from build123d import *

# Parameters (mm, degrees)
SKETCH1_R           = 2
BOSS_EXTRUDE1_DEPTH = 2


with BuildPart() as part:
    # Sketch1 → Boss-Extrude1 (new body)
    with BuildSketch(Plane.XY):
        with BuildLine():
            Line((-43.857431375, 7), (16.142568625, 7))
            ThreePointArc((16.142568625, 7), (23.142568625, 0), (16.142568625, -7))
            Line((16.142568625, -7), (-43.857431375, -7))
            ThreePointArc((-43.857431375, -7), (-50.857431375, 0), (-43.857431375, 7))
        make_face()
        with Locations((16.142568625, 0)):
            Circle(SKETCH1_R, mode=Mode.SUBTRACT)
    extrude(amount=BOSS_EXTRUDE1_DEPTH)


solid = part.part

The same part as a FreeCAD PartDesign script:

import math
import FreeCAD as App
import Part
import Sketcher

V = App.Vector
Q = App.Units.Quantity

doc = App.newDocument("Part")
body = doc.addObject("PartDesign::Body", "Body")

sketch1 = body.newObject("Sketcher::SketchObject", "Sketch")
sketch1.AttachmentSupport = (doc.getObject("XY_Plane"), [""])
sketch1.MapMode = "FlatFace"
sketch1.addGeometry(Part.LineSegment(V(16.1, 7, 0), V(-43.9, 7, 0)), False)
sketch1.addGeometry(Part.ArcOfCircle(Part.Circle(V(-43.9, 0, 0), V(0, 0, 1), 7), math.radians(90), math.radians(270)), False)
sketch1.addGeometry(Part.LineSegment(V(-43.9, -7, 0), V(16.1, -7, 0)), False)
sketch1.addGeometry(Part.ArcOfCircle(Part.Circle(V(16.1, 0, 0), V(0, 0, 1), 7), math.radians(-90), math.radians(90)), False)
sketch1.addGeometry(Part.Circle(V(16.1, 0, 0), V(0, 0, 1), 2), False)
sketch1.addConstraint(Sketcher.Constraint("Tangent", 0, 2, 1, 1))
sketch1.addConstraint(Sketcher.Constraint("Tangent", 1, 2, 2, 1))
sketch1.addConstraint(Sketcher.Constraint("Tangent", 2, 2, 3, 1))
sketch1.addConstraint(Sketcher.Constraint("Tangent", 3, 2, 0, 1))
sketch1.addConstraint(Sketcher.Constraint("Horizontal", 0))
sketch1.addConstraint(Sketcher.Constraint("Horizontal", 2))
sketch1.addConstraint(Sketcher.Constraint("Coincident", 4, 3, 3, 3))
sketch1.addConstraint(Sketcher.Constraint("PointOnObject", 1, 3, -1))
sketch1.addConstraint(Sketcher.Constraint("Diameter", 4, Q("4 mm")))
sketch1.addConstraint(Sketcher.Constraint("Radius", 1, Q("7 mm")))
sketch1.addConstraint(Sketcher.Constraint("DistanceX", 0, 2, 0, 1, Q("60 mm")))
sketch1.addConstraint(Sketcher.Constraint("DistanceX", 1, 3, -1, 1, Q("43.857431 mm")))
pad1 = body.newObject("PartDesign::Pad", "Pad")
pad1.Profile = sketch1
pad1.Length = 2

doc.recompute()
